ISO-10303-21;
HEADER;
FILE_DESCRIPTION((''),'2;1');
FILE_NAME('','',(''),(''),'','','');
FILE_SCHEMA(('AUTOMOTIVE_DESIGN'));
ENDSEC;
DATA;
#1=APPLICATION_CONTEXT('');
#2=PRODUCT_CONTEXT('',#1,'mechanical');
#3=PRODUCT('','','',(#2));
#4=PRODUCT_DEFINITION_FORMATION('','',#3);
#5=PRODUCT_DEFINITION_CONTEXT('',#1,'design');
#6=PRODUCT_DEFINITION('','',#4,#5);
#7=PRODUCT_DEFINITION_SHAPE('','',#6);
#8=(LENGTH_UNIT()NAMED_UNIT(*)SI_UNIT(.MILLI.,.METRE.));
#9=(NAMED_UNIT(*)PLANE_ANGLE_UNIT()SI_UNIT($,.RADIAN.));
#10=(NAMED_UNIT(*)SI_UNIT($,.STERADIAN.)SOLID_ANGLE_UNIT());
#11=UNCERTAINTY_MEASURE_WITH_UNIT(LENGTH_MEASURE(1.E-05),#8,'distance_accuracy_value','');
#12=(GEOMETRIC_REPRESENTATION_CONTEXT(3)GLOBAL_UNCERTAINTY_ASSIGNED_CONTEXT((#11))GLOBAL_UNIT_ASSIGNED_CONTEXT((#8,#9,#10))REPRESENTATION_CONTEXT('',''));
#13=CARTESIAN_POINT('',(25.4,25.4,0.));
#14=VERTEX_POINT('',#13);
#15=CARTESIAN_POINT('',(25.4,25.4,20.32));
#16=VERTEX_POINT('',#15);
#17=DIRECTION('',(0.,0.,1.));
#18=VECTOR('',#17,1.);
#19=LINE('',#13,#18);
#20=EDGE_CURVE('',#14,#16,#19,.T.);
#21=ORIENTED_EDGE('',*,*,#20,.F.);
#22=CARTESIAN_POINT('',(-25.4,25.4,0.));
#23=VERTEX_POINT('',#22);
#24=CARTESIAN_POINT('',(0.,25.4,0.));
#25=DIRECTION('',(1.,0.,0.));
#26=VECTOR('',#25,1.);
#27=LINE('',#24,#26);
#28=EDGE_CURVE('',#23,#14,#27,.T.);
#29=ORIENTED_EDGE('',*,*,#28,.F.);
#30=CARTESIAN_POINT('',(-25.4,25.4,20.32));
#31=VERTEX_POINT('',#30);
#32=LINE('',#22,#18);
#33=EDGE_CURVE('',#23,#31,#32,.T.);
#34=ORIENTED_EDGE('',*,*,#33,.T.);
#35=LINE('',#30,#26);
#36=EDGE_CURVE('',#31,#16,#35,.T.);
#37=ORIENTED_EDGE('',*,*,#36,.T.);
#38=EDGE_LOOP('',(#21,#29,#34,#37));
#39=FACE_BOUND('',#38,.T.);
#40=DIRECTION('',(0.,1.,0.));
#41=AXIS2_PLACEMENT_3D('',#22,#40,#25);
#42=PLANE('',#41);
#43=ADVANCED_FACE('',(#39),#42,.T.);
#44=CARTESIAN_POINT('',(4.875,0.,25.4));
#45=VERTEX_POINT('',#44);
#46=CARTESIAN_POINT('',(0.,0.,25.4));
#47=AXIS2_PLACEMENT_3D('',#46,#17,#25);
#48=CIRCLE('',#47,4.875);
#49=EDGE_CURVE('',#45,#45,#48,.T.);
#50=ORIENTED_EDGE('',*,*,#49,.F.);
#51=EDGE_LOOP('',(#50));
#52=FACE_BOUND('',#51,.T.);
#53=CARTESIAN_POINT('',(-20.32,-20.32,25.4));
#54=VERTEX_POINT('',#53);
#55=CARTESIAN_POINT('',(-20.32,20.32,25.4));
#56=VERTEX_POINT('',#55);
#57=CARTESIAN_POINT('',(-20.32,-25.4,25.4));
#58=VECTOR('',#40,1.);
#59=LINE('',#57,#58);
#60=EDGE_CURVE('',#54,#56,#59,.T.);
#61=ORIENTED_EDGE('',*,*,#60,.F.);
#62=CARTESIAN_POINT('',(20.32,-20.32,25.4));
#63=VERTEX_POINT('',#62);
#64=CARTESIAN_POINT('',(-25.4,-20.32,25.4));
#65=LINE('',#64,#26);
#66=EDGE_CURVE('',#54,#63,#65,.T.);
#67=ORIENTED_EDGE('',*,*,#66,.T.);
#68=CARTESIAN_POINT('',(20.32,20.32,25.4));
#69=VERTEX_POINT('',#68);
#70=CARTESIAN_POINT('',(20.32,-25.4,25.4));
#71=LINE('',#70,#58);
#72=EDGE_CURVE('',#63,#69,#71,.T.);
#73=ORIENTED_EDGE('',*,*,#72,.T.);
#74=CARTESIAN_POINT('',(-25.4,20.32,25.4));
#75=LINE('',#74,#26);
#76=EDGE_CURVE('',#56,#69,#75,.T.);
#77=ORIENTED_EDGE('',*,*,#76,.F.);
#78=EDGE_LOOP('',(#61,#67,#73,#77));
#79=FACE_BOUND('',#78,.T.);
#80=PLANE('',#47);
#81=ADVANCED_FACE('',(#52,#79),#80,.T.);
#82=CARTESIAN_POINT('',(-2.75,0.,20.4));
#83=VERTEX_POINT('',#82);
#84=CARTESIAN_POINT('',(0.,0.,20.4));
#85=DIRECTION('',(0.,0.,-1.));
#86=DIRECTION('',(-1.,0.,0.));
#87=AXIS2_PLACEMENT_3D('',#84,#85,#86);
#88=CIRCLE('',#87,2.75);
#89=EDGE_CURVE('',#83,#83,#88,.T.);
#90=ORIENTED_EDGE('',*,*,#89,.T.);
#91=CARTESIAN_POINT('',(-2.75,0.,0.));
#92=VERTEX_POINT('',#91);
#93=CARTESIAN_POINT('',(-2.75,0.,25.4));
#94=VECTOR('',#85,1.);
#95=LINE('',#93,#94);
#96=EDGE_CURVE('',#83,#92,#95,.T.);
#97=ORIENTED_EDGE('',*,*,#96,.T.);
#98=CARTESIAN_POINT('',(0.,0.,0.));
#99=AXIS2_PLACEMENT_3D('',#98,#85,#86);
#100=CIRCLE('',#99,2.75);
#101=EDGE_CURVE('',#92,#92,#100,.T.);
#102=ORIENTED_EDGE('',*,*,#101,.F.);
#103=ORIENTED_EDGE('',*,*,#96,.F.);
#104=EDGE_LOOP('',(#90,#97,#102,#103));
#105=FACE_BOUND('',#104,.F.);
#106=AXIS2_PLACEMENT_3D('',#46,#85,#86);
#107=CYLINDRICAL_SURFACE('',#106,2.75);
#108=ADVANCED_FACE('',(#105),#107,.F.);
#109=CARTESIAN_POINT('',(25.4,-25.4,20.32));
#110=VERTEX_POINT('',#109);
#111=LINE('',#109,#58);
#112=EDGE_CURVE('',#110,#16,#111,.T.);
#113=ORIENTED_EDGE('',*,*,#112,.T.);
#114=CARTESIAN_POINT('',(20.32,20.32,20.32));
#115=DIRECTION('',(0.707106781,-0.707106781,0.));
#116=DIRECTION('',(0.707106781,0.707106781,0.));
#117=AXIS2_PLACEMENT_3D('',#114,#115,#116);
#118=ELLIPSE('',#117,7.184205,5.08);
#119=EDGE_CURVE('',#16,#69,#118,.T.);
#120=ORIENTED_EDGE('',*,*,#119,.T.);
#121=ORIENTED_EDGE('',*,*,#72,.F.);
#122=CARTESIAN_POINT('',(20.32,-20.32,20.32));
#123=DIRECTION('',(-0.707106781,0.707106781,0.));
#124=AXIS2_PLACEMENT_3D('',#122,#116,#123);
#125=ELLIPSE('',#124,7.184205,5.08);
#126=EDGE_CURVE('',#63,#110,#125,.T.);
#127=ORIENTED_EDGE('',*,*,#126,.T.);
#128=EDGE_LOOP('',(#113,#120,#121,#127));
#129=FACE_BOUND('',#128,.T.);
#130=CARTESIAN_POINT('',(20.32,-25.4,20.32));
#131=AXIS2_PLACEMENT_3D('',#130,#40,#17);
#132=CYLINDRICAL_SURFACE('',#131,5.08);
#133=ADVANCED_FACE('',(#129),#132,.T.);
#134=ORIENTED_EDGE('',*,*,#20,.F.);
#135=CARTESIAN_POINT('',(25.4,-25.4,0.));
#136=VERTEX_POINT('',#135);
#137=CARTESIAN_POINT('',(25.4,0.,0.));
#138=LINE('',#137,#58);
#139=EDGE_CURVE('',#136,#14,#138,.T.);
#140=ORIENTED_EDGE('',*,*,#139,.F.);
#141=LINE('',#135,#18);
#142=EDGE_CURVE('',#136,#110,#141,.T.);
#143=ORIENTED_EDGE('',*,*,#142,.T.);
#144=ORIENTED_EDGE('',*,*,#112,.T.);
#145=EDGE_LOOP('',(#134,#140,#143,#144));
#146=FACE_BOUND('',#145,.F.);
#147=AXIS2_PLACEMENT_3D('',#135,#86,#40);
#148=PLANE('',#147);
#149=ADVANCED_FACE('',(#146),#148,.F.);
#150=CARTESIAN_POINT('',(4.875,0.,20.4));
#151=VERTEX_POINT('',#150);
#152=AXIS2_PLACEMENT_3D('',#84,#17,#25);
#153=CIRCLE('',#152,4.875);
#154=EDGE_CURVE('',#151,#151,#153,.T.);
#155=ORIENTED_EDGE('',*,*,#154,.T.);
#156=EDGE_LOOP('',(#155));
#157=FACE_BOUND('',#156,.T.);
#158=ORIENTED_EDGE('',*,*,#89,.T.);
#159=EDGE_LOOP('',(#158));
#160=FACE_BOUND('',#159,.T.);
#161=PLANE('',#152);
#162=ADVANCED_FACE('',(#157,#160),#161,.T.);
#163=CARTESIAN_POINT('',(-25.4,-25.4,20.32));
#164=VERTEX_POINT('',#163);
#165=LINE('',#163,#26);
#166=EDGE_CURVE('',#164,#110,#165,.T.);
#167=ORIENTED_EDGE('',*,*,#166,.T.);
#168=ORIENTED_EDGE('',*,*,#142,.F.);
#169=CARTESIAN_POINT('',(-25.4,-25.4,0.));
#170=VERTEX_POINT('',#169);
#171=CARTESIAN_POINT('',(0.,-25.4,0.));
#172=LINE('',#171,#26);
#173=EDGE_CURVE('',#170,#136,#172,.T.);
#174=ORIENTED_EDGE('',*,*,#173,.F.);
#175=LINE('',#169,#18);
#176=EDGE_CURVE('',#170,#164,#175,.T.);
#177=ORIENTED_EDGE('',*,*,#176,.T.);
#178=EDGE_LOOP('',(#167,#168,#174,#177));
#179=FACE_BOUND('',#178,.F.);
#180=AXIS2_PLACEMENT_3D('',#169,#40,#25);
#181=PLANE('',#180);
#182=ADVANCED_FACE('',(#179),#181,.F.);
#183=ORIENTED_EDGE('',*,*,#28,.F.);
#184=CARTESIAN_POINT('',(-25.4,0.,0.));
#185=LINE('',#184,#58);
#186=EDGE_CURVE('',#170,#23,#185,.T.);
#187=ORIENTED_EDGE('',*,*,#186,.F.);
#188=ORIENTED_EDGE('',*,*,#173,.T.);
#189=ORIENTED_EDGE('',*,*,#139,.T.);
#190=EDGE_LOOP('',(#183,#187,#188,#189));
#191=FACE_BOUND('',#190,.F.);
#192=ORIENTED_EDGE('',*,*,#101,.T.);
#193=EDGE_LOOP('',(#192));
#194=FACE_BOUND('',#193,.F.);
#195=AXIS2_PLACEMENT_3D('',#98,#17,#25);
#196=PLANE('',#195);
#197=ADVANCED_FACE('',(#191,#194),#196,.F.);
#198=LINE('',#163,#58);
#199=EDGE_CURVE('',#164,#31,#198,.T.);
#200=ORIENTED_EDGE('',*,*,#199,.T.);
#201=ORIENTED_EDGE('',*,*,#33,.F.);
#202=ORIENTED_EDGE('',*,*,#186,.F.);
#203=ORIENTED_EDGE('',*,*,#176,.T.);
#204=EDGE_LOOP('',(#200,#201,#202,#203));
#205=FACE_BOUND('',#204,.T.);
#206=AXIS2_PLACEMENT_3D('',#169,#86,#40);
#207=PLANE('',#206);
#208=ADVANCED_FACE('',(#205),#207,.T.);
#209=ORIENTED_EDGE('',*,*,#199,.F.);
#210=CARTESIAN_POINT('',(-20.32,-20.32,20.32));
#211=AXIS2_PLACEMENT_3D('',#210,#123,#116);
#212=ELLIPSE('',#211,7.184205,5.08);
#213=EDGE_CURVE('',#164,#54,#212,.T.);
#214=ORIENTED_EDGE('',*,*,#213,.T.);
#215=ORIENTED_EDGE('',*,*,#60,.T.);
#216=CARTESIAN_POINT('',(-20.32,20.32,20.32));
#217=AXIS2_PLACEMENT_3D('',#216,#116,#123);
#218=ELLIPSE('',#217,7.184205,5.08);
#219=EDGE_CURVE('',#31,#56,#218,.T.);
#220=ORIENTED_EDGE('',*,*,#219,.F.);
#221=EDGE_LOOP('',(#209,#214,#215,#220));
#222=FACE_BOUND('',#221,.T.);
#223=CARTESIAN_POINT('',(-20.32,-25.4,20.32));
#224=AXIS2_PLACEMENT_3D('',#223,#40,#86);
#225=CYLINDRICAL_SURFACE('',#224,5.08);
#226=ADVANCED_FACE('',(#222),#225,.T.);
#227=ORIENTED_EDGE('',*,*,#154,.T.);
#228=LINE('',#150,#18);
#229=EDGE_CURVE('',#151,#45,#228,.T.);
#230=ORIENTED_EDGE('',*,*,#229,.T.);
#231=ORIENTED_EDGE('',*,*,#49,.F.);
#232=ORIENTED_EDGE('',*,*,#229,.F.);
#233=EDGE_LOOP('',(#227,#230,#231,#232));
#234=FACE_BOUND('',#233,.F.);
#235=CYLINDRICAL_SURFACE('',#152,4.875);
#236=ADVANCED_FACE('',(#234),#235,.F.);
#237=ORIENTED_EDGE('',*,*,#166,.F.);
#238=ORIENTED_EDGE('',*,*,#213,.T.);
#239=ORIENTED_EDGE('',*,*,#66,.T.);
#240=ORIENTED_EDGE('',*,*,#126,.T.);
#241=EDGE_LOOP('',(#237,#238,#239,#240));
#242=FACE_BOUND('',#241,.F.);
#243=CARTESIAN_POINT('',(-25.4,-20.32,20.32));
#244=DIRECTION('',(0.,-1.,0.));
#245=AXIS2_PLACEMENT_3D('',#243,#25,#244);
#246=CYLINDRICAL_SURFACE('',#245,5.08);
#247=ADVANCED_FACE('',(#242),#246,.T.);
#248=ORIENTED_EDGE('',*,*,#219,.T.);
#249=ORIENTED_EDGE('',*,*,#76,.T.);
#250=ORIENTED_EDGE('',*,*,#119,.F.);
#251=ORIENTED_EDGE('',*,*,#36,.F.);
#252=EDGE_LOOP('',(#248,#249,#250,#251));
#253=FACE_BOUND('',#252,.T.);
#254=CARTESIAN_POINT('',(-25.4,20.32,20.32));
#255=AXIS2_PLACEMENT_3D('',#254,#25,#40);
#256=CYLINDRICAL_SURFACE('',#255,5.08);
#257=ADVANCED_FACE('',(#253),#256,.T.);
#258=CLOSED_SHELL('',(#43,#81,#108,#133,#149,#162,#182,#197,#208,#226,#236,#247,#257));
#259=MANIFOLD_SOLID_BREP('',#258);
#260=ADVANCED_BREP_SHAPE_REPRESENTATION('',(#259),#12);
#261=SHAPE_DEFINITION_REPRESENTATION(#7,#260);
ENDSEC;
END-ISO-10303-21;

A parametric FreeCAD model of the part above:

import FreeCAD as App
import Part
import Sketcher
from FreeCAD import Vector
Q = App.Units.Quantity


def edges_at(feature, points):
    """Names of the edges that pass closest to the given points."""
    edges = feature.Shape.Edges
    near = lambda p: min(range(len(edges)), key=lambda i: edges[i].distToShape(Part.Vertex(*p))[0])
    return sorted({f"Edge{near(p) + 1}" for p in points})


def add_polygon(sketch, points):
    """Adds a closed chain of lines whose ends are joined by coincident constraints."""
    first, n = sketch.GeometryCount, len(points)
    for a, b in zip(points, points[1:] + points[:1]):
        sketch.addGeometry(Part.LineSegment(App.Vector(*a, 0), App.Vector(*b, 0)), False)
    for i in range(n):
        sketch.addConstraint(Sketcher.Constraint("Coincident", first + i, 2, first + (i + 1) % n, 1))

doc = App.newDocument("Part")
body = doc.addObject("PartDesign::Body", "Body")

# Sketch on XY plane
sketch1 = body.newObject("Sketcher::SketchObject", "Sketch")
sketch1.AttachmentSupport = (doc.getObject("XY_Plane"), [""])
sketch1.MapMode = "FlatFace"
add_polygon(sketch1, [(-25.4, 25.4), (-25.4, -25.4), (25.4, -25.4), (25.4, 25.4)])  # lines 0-3
sketch1.addConstraint(Sketcher.Constraint("Vertical", 0))
sketch1.addConstraint(Sketcher.Constraint("Horizontal", 1))
sketch1.addConstraint(Sketcher.Constraint("Vertical", 2))
sketch1.addConstraint(Sketcher.Constraint("Horizontal", 3))
sketch1.addConstraint(Sketcher.Constraint("Symmetric", 0, 2, 2, 2, -1, 1))
sketch1.addConstraint(Sketcher.Constraint("Equal", 3, 0))
sketch1.addConstraint(Sketcher.Constraint("DistanceX", 1, 1, 1, 2, Q("2 in")))
pad1 = body.newObject("PartDesign::Pad", "Pad")
pad1.Profile = sketch1
pad1.Length = Q("1 in")

# Sketch on XY plane
sketch2 = body.newObject("Sketcher::SketchObject", "Sketch001")
sketch2.AttachmentSupport = (doc.getObject("XY_Plane"), [""])
sketch2.MapMode = "FlatFace"
sketch2.AttachmentOffset = App.Placement(Vector(0, 0, 1 * 25.4), App.Rotation())
sketch2.addGeometry(Part.Circle(Vector(0, 0, 0), Vector(0, 0, 1), 2.75), False)
sketch2.addConstraint(Sketcher.Constraint("Coincident", 0, 3, -1, 1))
sketch2.addConstraint(Sketcher.Constraint("Diameter", 0, Q("5.5 mm")))
doc.recompute()
hole = body.newObject("PartDesign::Hole", "Hole")
hole.Profile = sketch2
hole.ThreadType = "None"
hole.Diameter = 5.5
hole.DepthType = "ThroughAll"
hole.HoleCutType = "Counterbore"
hole.HoleCutDiameter = 9.75
hole.HoleCutDepth = 5
doc.recompute()

fillet = body.newObject("PartDesign::Fillet", "Fillet")
fillet.Base = (hole, edges_at(hole, [
    (-25.4, 0, 25.4),
    (0, 25.4, 25.4),
    (25.4, 0, 25.4),
    (0, -25.4, 25.4),
]))
fillet.Radius = Q("0.2 in")

doc.recompute()
